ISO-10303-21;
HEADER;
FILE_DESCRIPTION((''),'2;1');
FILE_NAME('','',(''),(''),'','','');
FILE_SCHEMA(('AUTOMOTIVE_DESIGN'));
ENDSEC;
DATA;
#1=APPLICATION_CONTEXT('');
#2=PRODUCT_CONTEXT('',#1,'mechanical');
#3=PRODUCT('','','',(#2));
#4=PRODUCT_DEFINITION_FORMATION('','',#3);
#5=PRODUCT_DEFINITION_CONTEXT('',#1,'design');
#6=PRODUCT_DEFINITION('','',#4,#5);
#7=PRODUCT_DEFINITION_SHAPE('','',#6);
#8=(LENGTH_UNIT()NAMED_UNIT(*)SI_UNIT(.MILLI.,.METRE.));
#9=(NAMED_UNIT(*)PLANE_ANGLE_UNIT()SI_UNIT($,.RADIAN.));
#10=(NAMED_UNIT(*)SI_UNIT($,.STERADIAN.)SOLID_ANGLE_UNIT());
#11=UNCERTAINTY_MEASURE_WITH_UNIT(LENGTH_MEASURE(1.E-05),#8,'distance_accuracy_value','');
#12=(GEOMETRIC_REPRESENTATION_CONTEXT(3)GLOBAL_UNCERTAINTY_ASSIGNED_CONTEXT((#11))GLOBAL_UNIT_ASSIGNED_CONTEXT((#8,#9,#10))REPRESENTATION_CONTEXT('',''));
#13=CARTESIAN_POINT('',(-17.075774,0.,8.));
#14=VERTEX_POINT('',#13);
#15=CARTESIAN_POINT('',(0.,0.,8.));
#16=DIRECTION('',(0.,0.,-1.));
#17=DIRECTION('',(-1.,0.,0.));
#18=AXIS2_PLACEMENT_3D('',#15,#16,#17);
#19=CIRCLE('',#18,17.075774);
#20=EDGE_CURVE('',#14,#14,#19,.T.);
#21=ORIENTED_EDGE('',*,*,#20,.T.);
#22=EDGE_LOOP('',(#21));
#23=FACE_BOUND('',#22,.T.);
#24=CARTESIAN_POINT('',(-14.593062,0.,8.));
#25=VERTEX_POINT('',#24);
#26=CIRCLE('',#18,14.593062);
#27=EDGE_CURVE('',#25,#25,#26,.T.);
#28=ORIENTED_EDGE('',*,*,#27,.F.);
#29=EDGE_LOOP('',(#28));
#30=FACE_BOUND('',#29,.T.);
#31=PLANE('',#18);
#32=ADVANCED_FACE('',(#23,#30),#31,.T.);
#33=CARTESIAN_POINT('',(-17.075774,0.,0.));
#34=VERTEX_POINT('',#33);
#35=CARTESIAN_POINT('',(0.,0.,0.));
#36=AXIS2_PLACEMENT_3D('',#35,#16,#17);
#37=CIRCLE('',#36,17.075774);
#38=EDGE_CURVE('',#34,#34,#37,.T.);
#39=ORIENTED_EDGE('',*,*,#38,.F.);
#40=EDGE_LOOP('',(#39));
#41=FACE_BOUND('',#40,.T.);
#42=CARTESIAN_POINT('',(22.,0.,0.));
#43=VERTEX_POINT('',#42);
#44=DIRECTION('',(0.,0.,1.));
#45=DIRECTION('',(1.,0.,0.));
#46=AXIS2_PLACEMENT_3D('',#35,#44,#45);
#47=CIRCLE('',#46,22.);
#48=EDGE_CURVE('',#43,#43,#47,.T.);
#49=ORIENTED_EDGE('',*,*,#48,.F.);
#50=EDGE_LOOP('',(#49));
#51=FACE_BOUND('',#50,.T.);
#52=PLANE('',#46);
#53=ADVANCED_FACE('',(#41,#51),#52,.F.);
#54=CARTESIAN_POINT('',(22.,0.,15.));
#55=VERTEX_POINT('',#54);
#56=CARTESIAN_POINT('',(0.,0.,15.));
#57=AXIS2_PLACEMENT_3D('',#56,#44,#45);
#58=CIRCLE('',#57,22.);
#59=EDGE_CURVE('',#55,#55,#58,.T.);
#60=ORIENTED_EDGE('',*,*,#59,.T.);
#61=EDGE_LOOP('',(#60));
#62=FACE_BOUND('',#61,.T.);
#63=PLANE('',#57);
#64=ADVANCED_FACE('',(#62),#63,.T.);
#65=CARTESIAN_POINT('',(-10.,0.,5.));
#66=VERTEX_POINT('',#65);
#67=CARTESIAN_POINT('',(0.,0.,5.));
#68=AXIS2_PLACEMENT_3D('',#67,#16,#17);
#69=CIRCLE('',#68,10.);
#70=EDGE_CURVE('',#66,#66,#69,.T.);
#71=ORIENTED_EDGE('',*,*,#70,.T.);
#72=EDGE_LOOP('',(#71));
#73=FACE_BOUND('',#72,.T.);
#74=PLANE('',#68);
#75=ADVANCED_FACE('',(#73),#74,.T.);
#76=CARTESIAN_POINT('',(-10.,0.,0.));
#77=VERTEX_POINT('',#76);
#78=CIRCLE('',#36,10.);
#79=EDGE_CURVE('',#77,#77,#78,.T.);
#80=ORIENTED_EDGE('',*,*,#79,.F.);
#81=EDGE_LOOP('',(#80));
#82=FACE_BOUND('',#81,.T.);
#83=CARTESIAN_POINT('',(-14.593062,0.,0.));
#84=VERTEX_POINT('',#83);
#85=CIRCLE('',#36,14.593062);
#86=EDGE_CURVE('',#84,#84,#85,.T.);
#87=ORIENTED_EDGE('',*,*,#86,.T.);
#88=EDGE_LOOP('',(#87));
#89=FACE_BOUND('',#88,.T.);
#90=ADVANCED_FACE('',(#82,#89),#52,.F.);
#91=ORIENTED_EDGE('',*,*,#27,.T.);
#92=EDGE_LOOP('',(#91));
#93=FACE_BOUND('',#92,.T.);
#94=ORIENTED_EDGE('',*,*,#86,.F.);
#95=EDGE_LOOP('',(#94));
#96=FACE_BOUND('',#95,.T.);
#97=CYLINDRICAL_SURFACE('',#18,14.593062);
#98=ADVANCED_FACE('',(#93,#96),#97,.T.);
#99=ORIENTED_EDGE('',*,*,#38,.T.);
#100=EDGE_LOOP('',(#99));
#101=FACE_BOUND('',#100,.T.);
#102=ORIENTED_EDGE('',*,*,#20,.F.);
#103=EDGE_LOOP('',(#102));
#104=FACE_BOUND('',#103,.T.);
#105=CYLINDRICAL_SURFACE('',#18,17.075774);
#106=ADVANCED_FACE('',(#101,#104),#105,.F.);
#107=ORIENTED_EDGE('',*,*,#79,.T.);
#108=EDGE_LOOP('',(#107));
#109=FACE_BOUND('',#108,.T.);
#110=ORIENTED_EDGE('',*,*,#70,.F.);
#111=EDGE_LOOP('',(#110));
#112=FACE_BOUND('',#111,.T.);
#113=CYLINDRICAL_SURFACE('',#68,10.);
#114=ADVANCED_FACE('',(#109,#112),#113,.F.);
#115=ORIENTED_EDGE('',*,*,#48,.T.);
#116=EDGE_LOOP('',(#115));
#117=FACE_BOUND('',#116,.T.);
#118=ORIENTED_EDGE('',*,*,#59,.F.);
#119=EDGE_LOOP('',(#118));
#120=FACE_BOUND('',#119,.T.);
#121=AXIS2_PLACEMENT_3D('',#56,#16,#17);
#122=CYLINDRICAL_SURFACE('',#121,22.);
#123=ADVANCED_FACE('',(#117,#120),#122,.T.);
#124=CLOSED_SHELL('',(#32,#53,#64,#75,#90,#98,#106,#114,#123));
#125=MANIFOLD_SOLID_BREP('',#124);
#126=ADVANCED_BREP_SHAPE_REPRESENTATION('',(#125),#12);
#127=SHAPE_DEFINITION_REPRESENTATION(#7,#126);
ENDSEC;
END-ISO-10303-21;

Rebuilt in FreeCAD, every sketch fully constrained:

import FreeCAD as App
import Part
import Sketcher

doc = App.newDocument("Part")
body = doc.addObject("PartDesign::Body", "Body")

sketch1 = body.newObject("Sketcher::SketchObject", "Sketch")
sketch1.AttachmentSupport = (doc.getObject("XY_Plane"), [""])
sketch1.MapMode = "FlatFace"
sketch1.addGeometry(Part.Circle(App.Vector(0, 0, 0), App.Vector(0, 0, 1), 22), False)
sketch1.addConstraint([
    Sketcher.Constraint("Coincident", 0, 3, -1, 1),
    Sketcher.Constraint("Diameter", 0, 44.0),
])
pad1 = body.newObject("PartDesign::Pad", "Pad")
pad1.Profile = sketch1
pad1.Length = 15

sketch2 = body.newObject("Sketcher::SketchObject", "Sketch001")
sketch2.AttachmentSupport = (doc.getObject("XY_Plane"), [""])
sketch2.MapMode = "FlatFace"
sketch2.addGeometry(Part.Circle(App.Vector(0, 0, 0), App.Vector(0, 0, 1), 10), False)
sketch2.addConstraint([
    Sketcher.Constraint("Coincident", 0, 3, -1, 1),
    Sketcher.Constraint("Diameter", 0, 20.0),
])
pocket1 = body.newObject("PartDesign::Pocket", "Pocket")
pocket1.Profile = sketch2
pocket1.Length = 5
pocket1.Reversed = True

sketch3 = body.newObject("Sketcher::SketchObject", "Sketch002")
sketch3.AttachmentSupport = (doc.getObject("XY_Plane"), [""])
sketch3.MapMode = "FlatFace"
sketch3.addGeometry([
    Part.Circle(App.Vector(0, 0, 0), App.Vector(0, 0, 1), 17),
    Part.Circle(App.Vector(0, 0, 0), App.Vector(0, 0, 1), 15),
], False)
sketch3.addConstraint([
    Sketcher.Constraint("Coincident", 0, 3, -1, 1),
    Sketcher.Constraint("Coincident", 1, 3, -1, 1),
    Sketcher.Constraint("Diameter", 0, 34.151547),
    Sketcher.Constraint("Diameter", 1, 29.186124),
])
pocket2 = body.newObject("PartDesign::Pocket", "Pocket001")
pocket2.Profile = sketch3
pocket2.Length = 8
pocket2.Reversed = True

doc.recompute()
